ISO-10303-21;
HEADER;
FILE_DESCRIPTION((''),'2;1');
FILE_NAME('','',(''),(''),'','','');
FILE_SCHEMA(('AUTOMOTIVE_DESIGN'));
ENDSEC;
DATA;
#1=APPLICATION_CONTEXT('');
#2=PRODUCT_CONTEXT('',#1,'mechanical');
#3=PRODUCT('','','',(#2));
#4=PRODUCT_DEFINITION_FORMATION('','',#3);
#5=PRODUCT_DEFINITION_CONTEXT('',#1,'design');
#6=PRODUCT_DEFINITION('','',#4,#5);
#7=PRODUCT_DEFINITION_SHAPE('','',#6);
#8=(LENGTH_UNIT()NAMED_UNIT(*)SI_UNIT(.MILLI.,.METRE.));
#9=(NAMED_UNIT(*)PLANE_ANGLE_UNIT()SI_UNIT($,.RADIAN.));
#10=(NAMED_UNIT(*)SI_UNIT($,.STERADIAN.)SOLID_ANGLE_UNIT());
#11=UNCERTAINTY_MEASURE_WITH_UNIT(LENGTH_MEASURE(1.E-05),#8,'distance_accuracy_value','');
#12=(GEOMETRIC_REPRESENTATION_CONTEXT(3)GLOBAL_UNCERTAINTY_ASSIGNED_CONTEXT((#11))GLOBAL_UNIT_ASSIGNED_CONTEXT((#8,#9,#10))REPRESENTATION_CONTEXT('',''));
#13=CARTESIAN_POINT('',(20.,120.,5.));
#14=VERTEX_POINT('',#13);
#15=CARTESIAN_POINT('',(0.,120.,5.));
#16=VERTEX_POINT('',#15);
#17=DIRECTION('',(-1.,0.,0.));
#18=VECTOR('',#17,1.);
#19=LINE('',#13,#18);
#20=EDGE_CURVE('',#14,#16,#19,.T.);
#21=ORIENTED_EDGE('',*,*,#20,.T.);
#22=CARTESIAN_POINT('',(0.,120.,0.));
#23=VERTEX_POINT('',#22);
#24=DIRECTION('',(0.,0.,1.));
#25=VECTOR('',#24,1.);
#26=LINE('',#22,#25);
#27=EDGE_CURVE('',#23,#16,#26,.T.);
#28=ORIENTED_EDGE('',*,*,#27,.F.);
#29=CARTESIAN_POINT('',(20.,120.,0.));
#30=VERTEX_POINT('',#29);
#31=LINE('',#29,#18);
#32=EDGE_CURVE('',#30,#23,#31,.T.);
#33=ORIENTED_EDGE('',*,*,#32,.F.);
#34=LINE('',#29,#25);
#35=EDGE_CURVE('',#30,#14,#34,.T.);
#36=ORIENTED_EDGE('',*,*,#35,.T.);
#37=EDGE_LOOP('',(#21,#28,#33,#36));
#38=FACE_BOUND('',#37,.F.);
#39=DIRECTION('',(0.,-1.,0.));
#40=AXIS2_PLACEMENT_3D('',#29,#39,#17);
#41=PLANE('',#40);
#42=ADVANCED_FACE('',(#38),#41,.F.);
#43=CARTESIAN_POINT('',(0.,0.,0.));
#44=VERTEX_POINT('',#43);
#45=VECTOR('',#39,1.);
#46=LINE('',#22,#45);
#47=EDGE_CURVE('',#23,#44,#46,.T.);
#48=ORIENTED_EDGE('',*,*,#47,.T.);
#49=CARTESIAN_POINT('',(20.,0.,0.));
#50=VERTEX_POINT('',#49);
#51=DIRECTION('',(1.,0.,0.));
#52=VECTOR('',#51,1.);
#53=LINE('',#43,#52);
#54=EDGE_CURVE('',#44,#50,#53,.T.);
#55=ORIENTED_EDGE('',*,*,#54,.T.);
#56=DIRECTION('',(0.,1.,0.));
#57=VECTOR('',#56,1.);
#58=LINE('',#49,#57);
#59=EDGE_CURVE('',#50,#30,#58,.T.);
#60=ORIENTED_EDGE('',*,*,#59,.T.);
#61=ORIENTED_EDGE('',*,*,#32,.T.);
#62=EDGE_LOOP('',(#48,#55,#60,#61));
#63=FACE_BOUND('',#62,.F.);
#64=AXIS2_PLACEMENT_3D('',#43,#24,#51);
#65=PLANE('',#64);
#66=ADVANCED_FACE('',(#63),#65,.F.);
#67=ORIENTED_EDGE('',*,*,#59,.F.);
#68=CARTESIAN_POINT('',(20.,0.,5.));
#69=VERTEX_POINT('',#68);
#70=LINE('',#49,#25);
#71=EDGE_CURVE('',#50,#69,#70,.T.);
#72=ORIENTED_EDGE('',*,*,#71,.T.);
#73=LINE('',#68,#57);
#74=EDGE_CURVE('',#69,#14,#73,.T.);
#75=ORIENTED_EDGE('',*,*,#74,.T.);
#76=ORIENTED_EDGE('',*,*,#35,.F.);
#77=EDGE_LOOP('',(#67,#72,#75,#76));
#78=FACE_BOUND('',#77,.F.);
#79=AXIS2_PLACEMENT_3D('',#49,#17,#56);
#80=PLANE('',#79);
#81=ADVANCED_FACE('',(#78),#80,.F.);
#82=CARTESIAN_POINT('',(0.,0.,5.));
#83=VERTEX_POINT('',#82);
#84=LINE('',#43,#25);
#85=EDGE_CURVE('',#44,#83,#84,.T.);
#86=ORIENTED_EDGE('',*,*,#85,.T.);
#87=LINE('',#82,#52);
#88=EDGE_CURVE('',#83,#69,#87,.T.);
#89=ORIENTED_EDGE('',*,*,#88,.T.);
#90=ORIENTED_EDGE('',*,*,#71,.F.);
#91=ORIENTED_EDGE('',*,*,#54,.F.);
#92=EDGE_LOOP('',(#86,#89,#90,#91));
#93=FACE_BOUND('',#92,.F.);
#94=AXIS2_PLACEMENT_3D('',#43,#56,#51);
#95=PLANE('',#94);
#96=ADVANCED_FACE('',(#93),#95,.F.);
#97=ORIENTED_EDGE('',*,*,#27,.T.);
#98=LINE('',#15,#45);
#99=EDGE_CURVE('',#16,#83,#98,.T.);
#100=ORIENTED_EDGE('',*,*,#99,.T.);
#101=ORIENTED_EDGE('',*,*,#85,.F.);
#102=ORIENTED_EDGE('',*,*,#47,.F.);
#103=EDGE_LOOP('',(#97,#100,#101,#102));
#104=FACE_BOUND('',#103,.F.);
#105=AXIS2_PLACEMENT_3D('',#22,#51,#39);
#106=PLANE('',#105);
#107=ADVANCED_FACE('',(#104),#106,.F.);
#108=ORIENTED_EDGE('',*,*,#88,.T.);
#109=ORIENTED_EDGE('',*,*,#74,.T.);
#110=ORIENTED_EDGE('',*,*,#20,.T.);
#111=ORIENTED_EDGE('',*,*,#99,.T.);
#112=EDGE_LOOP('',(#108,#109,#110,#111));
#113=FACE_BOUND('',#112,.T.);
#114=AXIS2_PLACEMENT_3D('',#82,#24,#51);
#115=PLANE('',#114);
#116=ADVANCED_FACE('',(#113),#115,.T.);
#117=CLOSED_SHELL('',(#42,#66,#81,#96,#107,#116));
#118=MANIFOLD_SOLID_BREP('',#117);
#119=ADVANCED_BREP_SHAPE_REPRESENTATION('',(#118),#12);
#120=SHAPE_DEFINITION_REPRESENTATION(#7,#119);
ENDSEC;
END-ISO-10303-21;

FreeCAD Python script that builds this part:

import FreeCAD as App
import Part
import Sketcher

doc = App.newDocument("Part")
params = doc.addObject("Spreadsheet::Sheet", "Params")
for row, (alias, value) in enumerate([
    ("sketch1_width", "20 mm"),
    ("sketch1_height", "120 mm"),
    ("pad1_length", "5 mm"),
], start=1):
    params.set(f"A{row}", alias)
    params.set(f"B{row}", "=" + value)
    params.setAlias(f"B{row}", alias)

body = doc.addObject("PartDesign::Body", "Body")

# Sketch on XY plane
sketch1 = body.newObject("Sketcher::SketchObject", "Sketch")
sketch1.AttachmentSupport = (doc.getObject("XY_Plane"), [""])
sketch1.MapMode = "FlatFace"
sketch1.addGeometry([
    Part.LineSegment(App.Vector(0, 120, 0), App.Vector(0, 0, 0)),
    Part.LineSegment(App.Vector(0, 0, 0), App.Vector(20, 0, 0)),
    Part.LineSegment(App.Vector(20, 0, 0), App.Vector(20, 120, 0)),
    Part.LineSegment(App.Vector(20, 120, 0), App.Vector(0, 120, 0)),
], False)
sketch1.addConstraint([
    Sketcher.Constraint("Coincident", 0, 2, 1, 1),
    Sketcher.Constraint("Coincident", 1, 2, 2, 1),
    Sketcher.Constraint("Coincident", 2, 2, 3, 1),
    Sketcher.Constraint("Coincident", 3, 2, 0, 1),
    Sketcher.Constraint("Vertical", 0),
    Sketcher.Constraint("Horizontal", 1),
    Sketcher.Constraint("Vertical", 2),
    Sketcher.Constraint("Horizontal", 3),
    Sketcher.Constraint("Coincident", 0, 2, -1, 1),
    Sketcher.Constraint("DistanceX", 1, 1, 1, 2, 20.0),
    Sketcher.Constraint("DistanceY", 0, 2, 0, 1, 120.0),
])
sketch1.setExpression("Constraints[9]", "Params.sketch1_width")
sketch1.setExpression("Constraints[10]", "Params.sketch1_height")
pad1 = body.newObject("PartDesign::Pad", "Pad")
pad1.Profile = sketch1
pad1.setExpression("Length", "Params.pad1_length")

doc.recompute()
